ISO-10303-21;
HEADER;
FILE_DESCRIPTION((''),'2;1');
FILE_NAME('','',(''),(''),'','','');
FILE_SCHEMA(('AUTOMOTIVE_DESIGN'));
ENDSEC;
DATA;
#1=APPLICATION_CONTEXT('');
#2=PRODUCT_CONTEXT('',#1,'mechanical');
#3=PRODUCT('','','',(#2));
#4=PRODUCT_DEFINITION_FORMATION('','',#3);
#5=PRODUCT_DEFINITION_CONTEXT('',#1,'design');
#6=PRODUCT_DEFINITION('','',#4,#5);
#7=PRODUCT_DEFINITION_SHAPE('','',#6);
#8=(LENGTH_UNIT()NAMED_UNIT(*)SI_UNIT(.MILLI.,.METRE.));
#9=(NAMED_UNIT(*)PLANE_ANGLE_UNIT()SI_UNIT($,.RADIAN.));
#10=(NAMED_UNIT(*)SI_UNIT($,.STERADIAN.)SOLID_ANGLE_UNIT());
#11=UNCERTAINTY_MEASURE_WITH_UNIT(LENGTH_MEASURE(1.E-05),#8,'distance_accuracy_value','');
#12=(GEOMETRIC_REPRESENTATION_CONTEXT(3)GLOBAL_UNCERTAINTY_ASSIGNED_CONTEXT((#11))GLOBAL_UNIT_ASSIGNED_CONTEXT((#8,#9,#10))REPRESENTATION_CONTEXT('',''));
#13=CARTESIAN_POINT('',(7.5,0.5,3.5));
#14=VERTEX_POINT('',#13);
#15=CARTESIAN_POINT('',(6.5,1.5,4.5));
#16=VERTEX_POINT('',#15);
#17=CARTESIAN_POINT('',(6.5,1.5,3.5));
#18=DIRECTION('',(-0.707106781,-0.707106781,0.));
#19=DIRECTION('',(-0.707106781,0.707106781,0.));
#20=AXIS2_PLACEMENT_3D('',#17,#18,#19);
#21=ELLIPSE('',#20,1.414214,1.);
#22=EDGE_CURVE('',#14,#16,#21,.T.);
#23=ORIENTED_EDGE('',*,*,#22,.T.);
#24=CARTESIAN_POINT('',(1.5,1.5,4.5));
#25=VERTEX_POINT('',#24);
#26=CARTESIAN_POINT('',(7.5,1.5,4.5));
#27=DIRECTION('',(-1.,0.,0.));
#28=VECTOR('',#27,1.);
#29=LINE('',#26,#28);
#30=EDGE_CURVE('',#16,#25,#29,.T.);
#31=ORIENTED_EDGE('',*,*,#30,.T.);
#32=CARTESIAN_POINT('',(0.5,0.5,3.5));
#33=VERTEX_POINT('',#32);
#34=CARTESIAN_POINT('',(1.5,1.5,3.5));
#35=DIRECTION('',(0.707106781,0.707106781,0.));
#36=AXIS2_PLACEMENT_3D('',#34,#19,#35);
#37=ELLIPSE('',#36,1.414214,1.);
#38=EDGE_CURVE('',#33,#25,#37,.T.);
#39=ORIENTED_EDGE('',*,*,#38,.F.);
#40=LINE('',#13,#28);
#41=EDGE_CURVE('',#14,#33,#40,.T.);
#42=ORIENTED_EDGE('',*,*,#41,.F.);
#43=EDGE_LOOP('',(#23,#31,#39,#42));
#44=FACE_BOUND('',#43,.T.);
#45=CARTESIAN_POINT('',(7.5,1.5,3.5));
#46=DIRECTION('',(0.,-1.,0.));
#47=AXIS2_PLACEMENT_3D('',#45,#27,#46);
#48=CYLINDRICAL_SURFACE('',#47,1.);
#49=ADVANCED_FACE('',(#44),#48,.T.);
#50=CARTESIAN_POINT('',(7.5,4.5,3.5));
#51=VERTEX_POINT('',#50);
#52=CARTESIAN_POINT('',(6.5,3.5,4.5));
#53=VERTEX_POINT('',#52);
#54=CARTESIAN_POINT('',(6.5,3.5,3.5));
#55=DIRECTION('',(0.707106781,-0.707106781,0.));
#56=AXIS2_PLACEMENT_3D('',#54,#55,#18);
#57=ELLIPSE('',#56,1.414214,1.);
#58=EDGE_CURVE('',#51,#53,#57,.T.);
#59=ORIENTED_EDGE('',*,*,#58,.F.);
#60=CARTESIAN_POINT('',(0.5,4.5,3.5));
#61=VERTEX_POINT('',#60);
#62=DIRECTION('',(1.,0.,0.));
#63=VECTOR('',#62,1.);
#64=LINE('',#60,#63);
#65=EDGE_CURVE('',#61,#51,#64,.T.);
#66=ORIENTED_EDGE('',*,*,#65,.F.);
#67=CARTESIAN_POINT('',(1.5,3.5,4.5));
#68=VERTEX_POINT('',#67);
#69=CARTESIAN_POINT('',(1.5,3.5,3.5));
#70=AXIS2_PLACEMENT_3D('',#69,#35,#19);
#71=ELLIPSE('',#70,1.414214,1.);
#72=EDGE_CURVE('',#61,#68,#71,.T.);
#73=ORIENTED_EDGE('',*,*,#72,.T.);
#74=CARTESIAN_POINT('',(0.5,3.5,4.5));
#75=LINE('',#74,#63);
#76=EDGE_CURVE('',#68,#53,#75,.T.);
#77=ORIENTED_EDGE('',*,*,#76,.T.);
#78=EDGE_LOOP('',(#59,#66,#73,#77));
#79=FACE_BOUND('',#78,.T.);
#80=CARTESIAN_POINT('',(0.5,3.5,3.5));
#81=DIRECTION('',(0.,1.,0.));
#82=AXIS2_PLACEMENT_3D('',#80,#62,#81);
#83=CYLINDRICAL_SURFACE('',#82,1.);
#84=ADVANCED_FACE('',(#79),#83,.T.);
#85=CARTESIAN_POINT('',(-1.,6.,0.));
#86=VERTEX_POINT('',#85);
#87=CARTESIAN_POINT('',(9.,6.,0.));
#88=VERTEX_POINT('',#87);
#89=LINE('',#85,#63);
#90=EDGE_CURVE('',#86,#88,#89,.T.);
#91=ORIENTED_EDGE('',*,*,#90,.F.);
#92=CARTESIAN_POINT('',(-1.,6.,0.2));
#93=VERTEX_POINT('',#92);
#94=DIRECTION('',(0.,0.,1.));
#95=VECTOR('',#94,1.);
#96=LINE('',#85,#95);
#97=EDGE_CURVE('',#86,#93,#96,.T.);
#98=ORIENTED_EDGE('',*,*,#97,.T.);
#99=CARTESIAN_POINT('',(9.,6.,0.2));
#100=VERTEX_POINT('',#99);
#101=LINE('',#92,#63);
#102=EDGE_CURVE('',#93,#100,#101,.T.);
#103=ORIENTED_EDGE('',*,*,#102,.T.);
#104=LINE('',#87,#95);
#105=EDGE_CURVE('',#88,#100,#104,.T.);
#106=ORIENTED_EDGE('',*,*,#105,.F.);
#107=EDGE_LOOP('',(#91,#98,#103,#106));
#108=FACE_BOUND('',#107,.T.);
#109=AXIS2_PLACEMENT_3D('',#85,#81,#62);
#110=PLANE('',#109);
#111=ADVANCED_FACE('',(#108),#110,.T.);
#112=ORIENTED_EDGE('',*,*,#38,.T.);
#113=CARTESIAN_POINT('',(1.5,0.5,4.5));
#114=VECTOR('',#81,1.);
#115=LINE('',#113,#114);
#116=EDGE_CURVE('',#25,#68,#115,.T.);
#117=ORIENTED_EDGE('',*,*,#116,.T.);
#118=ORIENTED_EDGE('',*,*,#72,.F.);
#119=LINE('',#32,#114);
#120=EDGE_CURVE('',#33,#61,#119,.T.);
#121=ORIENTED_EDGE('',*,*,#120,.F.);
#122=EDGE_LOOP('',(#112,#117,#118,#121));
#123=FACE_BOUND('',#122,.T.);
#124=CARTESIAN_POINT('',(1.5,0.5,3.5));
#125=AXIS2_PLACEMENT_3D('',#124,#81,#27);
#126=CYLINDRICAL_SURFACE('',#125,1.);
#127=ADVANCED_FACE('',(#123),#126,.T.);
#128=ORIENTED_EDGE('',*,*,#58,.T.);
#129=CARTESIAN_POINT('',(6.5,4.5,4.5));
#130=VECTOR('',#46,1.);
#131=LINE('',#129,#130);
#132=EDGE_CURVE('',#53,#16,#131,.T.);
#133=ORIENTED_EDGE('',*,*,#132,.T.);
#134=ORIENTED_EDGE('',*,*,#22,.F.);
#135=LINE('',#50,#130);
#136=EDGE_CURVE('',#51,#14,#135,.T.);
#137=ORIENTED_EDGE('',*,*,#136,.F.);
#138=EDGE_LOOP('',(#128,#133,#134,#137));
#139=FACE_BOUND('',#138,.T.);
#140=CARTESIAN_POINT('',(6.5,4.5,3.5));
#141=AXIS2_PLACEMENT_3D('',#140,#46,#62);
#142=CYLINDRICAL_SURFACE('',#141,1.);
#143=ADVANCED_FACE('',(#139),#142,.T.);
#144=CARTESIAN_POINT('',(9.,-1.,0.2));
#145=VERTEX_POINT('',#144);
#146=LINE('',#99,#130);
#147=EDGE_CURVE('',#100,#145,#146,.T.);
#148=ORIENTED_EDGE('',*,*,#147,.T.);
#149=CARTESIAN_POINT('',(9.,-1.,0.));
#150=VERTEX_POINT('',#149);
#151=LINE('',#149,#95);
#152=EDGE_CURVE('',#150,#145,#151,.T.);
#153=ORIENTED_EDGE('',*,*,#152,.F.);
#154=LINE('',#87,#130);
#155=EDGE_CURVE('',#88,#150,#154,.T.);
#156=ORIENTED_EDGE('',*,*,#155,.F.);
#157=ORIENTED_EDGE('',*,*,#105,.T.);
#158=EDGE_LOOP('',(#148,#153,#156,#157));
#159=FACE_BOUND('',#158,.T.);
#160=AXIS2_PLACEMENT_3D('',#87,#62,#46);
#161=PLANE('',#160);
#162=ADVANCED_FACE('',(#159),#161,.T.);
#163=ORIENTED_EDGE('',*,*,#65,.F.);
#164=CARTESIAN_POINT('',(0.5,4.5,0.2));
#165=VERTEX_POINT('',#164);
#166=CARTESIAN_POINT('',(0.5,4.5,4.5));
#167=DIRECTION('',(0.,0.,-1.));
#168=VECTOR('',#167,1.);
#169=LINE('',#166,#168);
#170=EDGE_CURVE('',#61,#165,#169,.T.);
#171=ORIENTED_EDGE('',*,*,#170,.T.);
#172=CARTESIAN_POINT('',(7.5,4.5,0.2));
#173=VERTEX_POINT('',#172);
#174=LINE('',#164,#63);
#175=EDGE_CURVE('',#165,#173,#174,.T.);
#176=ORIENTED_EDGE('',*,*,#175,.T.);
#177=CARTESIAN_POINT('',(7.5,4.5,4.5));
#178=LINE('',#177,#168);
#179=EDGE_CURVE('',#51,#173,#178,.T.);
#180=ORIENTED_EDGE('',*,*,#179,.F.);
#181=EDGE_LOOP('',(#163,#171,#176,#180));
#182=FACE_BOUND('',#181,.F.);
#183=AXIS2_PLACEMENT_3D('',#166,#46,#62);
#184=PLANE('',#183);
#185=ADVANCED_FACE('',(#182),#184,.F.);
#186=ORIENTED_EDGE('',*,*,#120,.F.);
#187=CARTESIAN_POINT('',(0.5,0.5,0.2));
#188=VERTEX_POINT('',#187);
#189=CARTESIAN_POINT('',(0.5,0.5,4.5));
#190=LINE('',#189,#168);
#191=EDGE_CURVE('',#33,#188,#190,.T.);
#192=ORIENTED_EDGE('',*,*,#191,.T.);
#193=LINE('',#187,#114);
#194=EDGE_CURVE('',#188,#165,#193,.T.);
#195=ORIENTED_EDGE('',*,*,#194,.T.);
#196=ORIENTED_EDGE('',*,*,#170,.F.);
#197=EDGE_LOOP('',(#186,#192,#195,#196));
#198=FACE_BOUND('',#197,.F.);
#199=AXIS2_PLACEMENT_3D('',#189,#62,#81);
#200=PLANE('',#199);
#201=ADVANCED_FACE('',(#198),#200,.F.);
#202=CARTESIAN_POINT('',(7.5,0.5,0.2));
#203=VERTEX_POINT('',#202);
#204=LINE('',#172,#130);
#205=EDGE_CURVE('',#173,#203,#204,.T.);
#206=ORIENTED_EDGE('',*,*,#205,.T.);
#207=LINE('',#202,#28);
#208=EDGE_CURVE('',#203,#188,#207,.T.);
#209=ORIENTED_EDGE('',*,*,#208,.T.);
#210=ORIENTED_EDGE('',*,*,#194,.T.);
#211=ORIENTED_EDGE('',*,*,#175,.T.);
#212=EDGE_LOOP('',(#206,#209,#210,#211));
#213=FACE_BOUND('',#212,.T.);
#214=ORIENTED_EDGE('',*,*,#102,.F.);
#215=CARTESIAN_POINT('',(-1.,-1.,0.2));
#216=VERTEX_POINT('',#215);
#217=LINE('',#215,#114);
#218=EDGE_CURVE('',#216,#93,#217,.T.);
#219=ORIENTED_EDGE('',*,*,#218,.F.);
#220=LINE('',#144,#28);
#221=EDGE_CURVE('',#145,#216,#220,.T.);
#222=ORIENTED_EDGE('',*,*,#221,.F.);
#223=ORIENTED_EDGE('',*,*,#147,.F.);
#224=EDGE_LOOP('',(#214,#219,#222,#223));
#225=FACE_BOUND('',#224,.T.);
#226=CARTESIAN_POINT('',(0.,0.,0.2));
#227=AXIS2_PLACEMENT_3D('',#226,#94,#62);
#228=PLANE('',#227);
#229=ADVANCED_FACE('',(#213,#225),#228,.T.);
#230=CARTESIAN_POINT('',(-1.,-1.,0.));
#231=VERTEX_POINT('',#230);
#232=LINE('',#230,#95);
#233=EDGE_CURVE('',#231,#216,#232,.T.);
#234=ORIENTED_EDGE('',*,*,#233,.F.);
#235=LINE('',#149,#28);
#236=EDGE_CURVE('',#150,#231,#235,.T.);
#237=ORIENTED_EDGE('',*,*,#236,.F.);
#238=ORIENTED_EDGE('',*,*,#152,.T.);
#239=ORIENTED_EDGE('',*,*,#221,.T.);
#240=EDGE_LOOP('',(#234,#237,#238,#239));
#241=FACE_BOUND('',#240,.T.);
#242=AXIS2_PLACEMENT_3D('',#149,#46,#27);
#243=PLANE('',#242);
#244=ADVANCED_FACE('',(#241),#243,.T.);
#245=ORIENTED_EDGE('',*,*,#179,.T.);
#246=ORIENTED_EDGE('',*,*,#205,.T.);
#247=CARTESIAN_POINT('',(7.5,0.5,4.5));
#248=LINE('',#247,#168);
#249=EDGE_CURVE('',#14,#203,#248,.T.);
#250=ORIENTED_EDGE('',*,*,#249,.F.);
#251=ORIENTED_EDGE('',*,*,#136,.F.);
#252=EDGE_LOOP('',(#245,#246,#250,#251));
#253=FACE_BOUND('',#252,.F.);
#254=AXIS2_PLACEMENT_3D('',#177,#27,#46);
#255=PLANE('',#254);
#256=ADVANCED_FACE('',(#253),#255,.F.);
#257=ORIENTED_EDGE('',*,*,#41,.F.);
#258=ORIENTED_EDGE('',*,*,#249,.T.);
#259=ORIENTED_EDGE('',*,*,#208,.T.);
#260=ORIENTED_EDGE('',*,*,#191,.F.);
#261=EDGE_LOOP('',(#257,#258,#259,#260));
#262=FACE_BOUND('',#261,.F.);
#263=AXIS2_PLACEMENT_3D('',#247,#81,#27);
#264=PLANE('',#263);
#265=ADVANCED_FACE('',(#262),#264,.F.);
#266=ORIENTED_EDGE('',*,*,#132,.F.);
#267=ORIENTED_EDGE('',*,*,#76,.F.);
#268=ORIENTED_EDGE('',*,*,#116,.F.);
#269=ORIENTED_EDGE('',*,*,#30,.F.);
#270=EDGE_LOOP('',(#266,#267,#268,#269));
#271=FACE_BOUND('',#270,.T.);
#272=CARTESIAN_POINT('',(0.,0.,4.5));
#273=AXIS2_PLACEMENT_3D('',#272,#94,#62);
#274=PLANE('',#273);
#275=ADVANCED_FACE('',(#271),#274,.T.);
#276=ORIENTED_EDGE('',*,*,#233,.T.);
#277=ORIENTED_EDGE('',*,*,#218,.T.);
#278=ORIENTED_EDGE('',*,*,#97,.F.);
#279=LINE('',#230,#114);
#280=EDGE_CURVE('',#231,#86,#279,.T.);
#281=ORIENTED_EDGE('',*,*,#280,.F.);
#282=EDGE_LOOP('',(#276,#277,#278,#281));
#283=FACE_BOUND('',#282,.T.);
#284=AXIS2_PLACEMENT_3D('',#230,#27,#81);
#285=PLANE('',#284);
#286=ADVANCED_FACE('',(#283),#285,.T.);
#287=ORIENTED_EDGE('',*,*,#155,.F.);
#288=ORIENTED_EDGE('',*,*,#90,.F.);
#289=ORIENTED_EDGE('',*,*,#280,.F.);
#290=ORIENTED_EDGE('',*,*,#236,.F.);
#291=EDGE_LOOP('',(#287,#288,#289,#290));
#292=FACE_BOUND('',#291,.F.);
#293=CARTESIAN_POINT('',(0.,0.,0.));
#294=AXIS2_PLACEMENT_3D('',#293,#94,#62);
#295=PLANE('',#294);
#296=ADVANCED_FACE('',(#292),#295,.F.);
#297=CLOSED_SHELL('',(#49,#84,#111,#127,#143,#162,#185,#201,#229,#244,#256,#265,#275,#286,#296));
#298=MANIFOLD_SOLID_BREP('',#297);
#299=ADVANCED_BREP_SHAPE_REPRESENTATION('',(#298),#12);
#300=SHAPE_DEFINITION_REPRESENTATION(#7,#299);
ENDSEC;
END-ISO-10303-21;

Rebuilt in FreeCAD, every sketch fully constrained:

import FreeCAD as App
import Part
import Sketcher
from FreeCAD import Vector
Q = App.Units.Quantity


def edges_at(feature, points):
    """Names of the edges that pass closest to the given points."""
    edges = feature.Shape.Edges
    near = lambda p: min(range(len(edges)), key=lambda i: edges[i].distToShape(Part.Vertex(*p))[0])
    return sorted({f"Edge{near(p) + 1}" for p in points})

doc = App.newDocument("Part")
body = doc.addObject("PartDesign::Body", "Body")

sketch1 = body.newObject("Sketcher::SketchObject", "Sketch")
sketch1.AttachmentSupport = (doc.getObject("XY_Plane"), [""])
sketch1.MapMode = "FlatFace"
sketch1.addGeometry(Part.LineSegment(Vector(9, 6, 0), Vector(-1, 6, 0)), False)
sketch1.addGeometry(Part.LineSegment(Vector(-1, 6, 0), Vector(-1, -1, 0)), False)
sketch1.addGeometry(Part.LineSegment(Vector(-1, -1, 0), Vector(9, -1, 0)), False)
sketch1.addGeometry(Part.LineSegment(Vector(9, -1, 0), Vector(9, 6, 0)), False)
sketch1.addConstraint(Sketcher.Constraint("Coincident", 0, 2, 1, 1))
sketch1.addConstraint(Sketcher.Constraint("Coincident", 1, 2, 2, 1))
sketch1.addConstraint(Sketcher.Constraint("Coincident", 2, 2, 3, 1))
sketch1.addConstraint(Sketcher.Constraint("Coincident", 3, 2, 0, 1))
sketch1.addConstraint(Sketcher.Constraint("Horizontal", 0))
sketch1.addConstraint(Sketcher.Constraint("Vertical", 1))
sketch1.addConstraint(Sketcher.Constraint("Horizontal", 2))
sketch1.addConstraint(Sketcher.Constraint("Vertical", 3))
sketch1.addConstraint(Sketcher.Constraint("DistanceX", 0, 2, 0, 1, Q("10 mm")))
sketch1.addConstraint(Sketcher.Constraint("DistanceY", 1, 2, 1, 1, Q("7 mm")))
sketch1.addConstraint(Sketcher.Constraint("DistanceX", 0, 2, -1, 1, Q("1 mm")))
sketch1.addConstraint(Sketcher.Constraint("DistanceY", -1, 1, 0, 2, Q("6 mm")))
pad1 = body.newObject("PartDesign::Pad", "Pad")
pad1.Profile = sketch1
pad1.Length = 4.5

sketch2 = body.newObject("Sketcher::SketchObject", "Sketch001")
sketch2.AttachmentSupport = (doc.getObject("XY_Plane"), [""])
sketch2.MapMode = "FlatFace"
sketch2.AttachmentOffset = App.Placement(Vector(0, 0, 4.5), App.Rotation())
sketch2.addGeometry(Part.LineSegment(Vector(9, 6, 0), Vector(-1, 6, 0)), False)
sketch2.addGeometry(Part.LineSegment(Vector(-1, 6, 0), Vector(-1, -1, 0)), False)
sketch2.addGeometry(Part.LineSegment(Vector(-1, -1, 0), Vector(9, -1, 0)), False)
sketch2.addGeometry(Part.LineSegment(Vector(9, -1, 0), Vector(9, 6, 0)), False)
sketch2.addGeometry(Part.LineSegment(Vector(0.5, 0.5, 0), Vector(0.5, 4.5, 0)), False)
sketch2.addGeometry(Part.LineSegment(Vector(0.5, 4.5, 0), Vector(7.5, 4.5, 0)), False)
sketch2.addGeometry(Part.LineSegment(Vector(7.5, 4.5, 0), Vector(7.5, 0.5, 0)), False)
sketch2.addGeometry(Part.LineSegment(Vector(7.5, 0.5, 0), Vector(0.5, 0.5, 0)), False)
sketch2.addConstraint(Sketcher.Constraint("Coincident", 0, 2, 1, 1))
sketch2.addConstraint(Sketcher.Constraint("Coincident", 1, 2, 2, 1))
sketch2.addConstraint(Sketcher.Constraint("Coincident", 2, 2, 3, 1))
sketch2.addConstraint(Sketcher.Constraint("Coincident", 3, 2, 0, 1))
sketch2.addConstraint(Sketcher.Constraint("Coincident", 4, 2, 5, 1))
sketch2.addConstraint(Sketcher.Constraint("Coincident", 5, 2, 6, 1))
sketch2.addConstraint(Sketcher.Constraint("Coincident", 6, 2, 7, 1))
sketch2.addConstraint(Sketcher.Constraint("Coincident", 7, 2, 4, 1))
sketch2.addConstraint(Sketcher.Constraint("Horizontal", 0))
sketch2.addConstraint(Sketcher.Constraint("Vertical", 1))
sketch2.addConstraint(Sketcher.Constraint("Horizontal", 2))
sketch2.addConstraint(Sketcher.Constraint("Vertical", 3))
sketch2.addConstraint(Sketcher.Constraint("Vertical", 4))
sketch2.addConstraint(Sketcher.Constraint("Horizontal", 5))
sketch2.addConstraint(Sketcher.Constraint("Vertical", 6))
sketch2.addConstraint(Sketcher.Constraint("Horizontal", 7))
sketch2.addConstraint(Sketcher.Constraint("Equal", 7, 1))
sketch2.addConstraint(Sketcher.Constraint("DistanceX", 0, 2, 0, 1, Q("10 mm")))
sketch2.addConstraint(Sketcher.Constraint("DistanceX", 5, 1, 5, 2, Q("7 mm")))
sketch2.addConstraint(Sketcher.Constraint("DistanceY", 4, 1, 4, 2, Q("4 mm")))
sketch2.addConstraint(Sketcher.Constraint("DistanceX", 0, 2, -1, 1, Q("1 mm")))
sketch2.addConstraint(Sketcher.Constraint("DistanceY", -1, 1, 0, 2, Q("6 mm")))
sketch2.addConstraint(Sketcher.Constraint("DistanceX", -1, 1, 4, 2, Q("0.5 mm")))
sketch2.addConstraint(Sketcher.Constraint("DistanceY", -1, 1, 4, 2, Q("4.5 mm")))
pocket1 = body.newObject("PartDesign::Pocket", "Pocket")
pocket1.Profile = sketch2
pocket1.Length = 4.3
doc.recompute()

fillet = body.newObject("PartDesign::Fillet", "Fillet")
fillet.Base = (pocket1, edges_at(pocket1, [
    (0.5, 2.5, 4.5),
    (4, 0.5, 4.5),
    (7.5, 2.5, 4.5),
    (4, 4.5, 4.5),
]))
fillet.Radius = 1

doc.recompute()
